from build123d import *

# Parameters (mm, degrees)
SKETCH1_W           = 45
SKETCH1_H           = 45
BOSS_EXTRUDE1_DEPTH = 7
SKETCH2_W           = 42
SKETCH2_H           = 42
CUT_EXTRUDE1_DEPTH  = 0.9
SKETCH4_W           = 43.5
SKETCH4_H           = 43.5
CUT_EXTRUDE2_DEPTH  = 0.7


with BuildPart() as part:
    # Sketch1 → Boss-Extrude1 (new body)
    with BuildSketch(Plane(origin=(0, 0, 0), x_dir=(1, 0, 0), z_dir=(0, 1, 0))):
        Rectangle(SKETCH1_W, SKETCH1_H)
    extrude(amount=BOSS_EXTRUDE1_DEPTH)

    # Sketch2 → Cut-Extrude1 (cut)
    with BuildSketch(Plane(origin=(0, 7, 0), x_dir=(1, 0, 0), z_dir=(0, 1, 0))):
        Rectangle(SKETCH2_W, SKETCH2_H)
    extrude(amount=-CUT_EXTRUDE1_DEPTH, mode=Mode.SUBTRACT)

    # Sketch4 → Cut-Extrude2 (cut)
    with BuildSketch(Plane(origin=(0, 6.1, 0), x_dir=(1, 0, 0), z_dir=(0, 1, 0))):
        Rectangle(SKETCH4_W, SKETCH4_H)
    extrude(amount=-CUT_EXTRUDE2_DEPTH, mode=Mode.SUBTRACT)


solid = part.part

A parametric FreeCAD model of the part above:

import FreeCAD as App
import Part
import Sketcher
from FreeCAD import Vector
Q = App.Units.Quantity


def add_polygon(sketch, points):
    """Adds a closed chain of lines whose ends are joined by coincident constraints."""
    first, n = sketch.GeometryCount, len(points)
    for a, b in zip(points, points[1:] + points[:1]):
        sketch.addGeometry(Part.LineSegment(App.Vector(*a, 0), App.Vector(*b, 0)), False)
    for i in range(n):
        sketch.addConstraint(Sketcher.Constraint("Coincident", first + i, 2, first + (i + 1) % n, 1))

doc = App.newDocument("Part")
params = doc.addObject("Spreadsheet::Sheet", "Params")
for row, (alias, value) in enumerate([
    ("sketch1_width", "45 mm"),
    ("pad1_length", "7 mm"),
    ("sketch2_width", "42 mm"),
    ("pocket1_length", "0.9 mm"),
    ("sketch3_width", "43.5 mm"),
    ("pocket2_length", "0.7 mm"),
], start=1):
    params.set(f"A{row}", alias)
    params.set(f"B{row}", "=" + value)
    params.setAlias(f"B{row}", alias)

body = doc.addObject("PartDesign::Body", "Body")

sketch1 = doc.addObject("Sketcher::SketchObject", "Sketch")
body.addObject(sketch1)
sketch1.AttachmentSupport = (doc.XZ_Plane, [""])
sketch1.MapMode = "FlatFace"
add_polygon(sketch1, [(-22, -22), (-22, 22), (22, 22), (22, -22)])
sketch1.addConstraint([
    Sketcher.Constraint("Vertical", 0),
    Sketcher.Constraint("Horizontal", 1),
    Sketcher.Constraint("Vertical", 2),
    Sketcher.Constraint("Horizontal", 3),
    Sketcher.Constraint("Symmetric", 0, 2, 2, 2, -1, 1),
    Sketcher.Constraint("Equal", 3, 0),
    Sketcher.Constraint("DistanceX", 1, 1, 1, 2, Q("45 mm")),
])
sketch1.setExpression("Constraints[10]", "Params.sketch1_width")
pad1 = doc.addObject("PartDesign::Pad", "Pad")
body.addObject(pad1)
pad1.Profile = sketch1
pad1.setExpression("Length", "Params.pad1_length")
pad1.Reversed = True

sketch2 = doc.addObject("Sketcher::SketchObject", "Sketch001")
body.addObject(sketch2)
sketch2.AttachmentSupport = (doc.XZ_Plane, [""])
sketch2.MapMode = "FlatFace"
sketch2.AttachmentOffset = App.Placement(Vector(0, 0, -7), App.Rotation())
add_polygon(sketch2, [(-21, -21), (-21, 21), (21, 21), (21, -21)])
sketch2.addConstraint([
    Sketcher.Constraint("Vertical", 0),
    Sketcher.Constraint("Horizontal", 1),
    Sketcher.Constraint("Vertical", 2),
    Sketcher.Constraint("Horizontal", 3),
    Sketcher.Constraint("Symmetric", 0, 2, 2, 2, -1, 1),
    Sketcher.Constraint("Equal", 3, 0),
    Sketcher.Constraint("DistanceX", 1, 1, 1, 2, Q("42 mm")),
])
sketch2.setExpression("Constraints[10]", "Params.sketch2_width")
pocket1 = doc.addObject("PartDesign::Pocket", "Pocket")
body.addObject(pocket1)
pocket1.Profile = sketch2
pocket1.setExpression("Length", "Params.pocket1_length")
pocket1.Reversed = True

sketch3 = doc.addObject("Sketcher::SketchObject", "Sketch002")
body.addObject(sketch3)
sketch3.AttachmentSupport = (doc.XZ_Plane, [""])
sketch3.MapMode = "FlatFace"
sketch3.AttachmentOffset = App.Placement(Vector(0, 0, -6.1), App.Rotation())
add_polygon(sketch3, [(-22, -22), (-22, 22), (22, 22), (22, -22)])
sketch3.addConstraint([
    Sketcher.Constraint("Vertical", 0),
    Sketcher.Constraint("Horizontal", 1),
    Sketcher.Constraint("Vertical", 2),
    Sketcher.Constraint("Horizontal", 3),
    Sketcher.Constraint("Symmetric", 0, 2, 2, 2, -1, 1),
    Sketcher.Constraint("Equal", 3, 0),
    Sketcher.Constraint("DistanceX", 1, 1, 1, 2, Q("43.5 mm")),
])
sketch3.setExpression("Constraints[10]", "Params.sketch3_width")
pocket2 = doc.addObject("PartDesign::Pocket", "Pocket001")
body.addObject(pocket2)
pocket2.Profile = sketch3
pocket2.setExpression("Length", "Params.pocket2_length")
pocket2.Reversed = True

doc.recompute()
